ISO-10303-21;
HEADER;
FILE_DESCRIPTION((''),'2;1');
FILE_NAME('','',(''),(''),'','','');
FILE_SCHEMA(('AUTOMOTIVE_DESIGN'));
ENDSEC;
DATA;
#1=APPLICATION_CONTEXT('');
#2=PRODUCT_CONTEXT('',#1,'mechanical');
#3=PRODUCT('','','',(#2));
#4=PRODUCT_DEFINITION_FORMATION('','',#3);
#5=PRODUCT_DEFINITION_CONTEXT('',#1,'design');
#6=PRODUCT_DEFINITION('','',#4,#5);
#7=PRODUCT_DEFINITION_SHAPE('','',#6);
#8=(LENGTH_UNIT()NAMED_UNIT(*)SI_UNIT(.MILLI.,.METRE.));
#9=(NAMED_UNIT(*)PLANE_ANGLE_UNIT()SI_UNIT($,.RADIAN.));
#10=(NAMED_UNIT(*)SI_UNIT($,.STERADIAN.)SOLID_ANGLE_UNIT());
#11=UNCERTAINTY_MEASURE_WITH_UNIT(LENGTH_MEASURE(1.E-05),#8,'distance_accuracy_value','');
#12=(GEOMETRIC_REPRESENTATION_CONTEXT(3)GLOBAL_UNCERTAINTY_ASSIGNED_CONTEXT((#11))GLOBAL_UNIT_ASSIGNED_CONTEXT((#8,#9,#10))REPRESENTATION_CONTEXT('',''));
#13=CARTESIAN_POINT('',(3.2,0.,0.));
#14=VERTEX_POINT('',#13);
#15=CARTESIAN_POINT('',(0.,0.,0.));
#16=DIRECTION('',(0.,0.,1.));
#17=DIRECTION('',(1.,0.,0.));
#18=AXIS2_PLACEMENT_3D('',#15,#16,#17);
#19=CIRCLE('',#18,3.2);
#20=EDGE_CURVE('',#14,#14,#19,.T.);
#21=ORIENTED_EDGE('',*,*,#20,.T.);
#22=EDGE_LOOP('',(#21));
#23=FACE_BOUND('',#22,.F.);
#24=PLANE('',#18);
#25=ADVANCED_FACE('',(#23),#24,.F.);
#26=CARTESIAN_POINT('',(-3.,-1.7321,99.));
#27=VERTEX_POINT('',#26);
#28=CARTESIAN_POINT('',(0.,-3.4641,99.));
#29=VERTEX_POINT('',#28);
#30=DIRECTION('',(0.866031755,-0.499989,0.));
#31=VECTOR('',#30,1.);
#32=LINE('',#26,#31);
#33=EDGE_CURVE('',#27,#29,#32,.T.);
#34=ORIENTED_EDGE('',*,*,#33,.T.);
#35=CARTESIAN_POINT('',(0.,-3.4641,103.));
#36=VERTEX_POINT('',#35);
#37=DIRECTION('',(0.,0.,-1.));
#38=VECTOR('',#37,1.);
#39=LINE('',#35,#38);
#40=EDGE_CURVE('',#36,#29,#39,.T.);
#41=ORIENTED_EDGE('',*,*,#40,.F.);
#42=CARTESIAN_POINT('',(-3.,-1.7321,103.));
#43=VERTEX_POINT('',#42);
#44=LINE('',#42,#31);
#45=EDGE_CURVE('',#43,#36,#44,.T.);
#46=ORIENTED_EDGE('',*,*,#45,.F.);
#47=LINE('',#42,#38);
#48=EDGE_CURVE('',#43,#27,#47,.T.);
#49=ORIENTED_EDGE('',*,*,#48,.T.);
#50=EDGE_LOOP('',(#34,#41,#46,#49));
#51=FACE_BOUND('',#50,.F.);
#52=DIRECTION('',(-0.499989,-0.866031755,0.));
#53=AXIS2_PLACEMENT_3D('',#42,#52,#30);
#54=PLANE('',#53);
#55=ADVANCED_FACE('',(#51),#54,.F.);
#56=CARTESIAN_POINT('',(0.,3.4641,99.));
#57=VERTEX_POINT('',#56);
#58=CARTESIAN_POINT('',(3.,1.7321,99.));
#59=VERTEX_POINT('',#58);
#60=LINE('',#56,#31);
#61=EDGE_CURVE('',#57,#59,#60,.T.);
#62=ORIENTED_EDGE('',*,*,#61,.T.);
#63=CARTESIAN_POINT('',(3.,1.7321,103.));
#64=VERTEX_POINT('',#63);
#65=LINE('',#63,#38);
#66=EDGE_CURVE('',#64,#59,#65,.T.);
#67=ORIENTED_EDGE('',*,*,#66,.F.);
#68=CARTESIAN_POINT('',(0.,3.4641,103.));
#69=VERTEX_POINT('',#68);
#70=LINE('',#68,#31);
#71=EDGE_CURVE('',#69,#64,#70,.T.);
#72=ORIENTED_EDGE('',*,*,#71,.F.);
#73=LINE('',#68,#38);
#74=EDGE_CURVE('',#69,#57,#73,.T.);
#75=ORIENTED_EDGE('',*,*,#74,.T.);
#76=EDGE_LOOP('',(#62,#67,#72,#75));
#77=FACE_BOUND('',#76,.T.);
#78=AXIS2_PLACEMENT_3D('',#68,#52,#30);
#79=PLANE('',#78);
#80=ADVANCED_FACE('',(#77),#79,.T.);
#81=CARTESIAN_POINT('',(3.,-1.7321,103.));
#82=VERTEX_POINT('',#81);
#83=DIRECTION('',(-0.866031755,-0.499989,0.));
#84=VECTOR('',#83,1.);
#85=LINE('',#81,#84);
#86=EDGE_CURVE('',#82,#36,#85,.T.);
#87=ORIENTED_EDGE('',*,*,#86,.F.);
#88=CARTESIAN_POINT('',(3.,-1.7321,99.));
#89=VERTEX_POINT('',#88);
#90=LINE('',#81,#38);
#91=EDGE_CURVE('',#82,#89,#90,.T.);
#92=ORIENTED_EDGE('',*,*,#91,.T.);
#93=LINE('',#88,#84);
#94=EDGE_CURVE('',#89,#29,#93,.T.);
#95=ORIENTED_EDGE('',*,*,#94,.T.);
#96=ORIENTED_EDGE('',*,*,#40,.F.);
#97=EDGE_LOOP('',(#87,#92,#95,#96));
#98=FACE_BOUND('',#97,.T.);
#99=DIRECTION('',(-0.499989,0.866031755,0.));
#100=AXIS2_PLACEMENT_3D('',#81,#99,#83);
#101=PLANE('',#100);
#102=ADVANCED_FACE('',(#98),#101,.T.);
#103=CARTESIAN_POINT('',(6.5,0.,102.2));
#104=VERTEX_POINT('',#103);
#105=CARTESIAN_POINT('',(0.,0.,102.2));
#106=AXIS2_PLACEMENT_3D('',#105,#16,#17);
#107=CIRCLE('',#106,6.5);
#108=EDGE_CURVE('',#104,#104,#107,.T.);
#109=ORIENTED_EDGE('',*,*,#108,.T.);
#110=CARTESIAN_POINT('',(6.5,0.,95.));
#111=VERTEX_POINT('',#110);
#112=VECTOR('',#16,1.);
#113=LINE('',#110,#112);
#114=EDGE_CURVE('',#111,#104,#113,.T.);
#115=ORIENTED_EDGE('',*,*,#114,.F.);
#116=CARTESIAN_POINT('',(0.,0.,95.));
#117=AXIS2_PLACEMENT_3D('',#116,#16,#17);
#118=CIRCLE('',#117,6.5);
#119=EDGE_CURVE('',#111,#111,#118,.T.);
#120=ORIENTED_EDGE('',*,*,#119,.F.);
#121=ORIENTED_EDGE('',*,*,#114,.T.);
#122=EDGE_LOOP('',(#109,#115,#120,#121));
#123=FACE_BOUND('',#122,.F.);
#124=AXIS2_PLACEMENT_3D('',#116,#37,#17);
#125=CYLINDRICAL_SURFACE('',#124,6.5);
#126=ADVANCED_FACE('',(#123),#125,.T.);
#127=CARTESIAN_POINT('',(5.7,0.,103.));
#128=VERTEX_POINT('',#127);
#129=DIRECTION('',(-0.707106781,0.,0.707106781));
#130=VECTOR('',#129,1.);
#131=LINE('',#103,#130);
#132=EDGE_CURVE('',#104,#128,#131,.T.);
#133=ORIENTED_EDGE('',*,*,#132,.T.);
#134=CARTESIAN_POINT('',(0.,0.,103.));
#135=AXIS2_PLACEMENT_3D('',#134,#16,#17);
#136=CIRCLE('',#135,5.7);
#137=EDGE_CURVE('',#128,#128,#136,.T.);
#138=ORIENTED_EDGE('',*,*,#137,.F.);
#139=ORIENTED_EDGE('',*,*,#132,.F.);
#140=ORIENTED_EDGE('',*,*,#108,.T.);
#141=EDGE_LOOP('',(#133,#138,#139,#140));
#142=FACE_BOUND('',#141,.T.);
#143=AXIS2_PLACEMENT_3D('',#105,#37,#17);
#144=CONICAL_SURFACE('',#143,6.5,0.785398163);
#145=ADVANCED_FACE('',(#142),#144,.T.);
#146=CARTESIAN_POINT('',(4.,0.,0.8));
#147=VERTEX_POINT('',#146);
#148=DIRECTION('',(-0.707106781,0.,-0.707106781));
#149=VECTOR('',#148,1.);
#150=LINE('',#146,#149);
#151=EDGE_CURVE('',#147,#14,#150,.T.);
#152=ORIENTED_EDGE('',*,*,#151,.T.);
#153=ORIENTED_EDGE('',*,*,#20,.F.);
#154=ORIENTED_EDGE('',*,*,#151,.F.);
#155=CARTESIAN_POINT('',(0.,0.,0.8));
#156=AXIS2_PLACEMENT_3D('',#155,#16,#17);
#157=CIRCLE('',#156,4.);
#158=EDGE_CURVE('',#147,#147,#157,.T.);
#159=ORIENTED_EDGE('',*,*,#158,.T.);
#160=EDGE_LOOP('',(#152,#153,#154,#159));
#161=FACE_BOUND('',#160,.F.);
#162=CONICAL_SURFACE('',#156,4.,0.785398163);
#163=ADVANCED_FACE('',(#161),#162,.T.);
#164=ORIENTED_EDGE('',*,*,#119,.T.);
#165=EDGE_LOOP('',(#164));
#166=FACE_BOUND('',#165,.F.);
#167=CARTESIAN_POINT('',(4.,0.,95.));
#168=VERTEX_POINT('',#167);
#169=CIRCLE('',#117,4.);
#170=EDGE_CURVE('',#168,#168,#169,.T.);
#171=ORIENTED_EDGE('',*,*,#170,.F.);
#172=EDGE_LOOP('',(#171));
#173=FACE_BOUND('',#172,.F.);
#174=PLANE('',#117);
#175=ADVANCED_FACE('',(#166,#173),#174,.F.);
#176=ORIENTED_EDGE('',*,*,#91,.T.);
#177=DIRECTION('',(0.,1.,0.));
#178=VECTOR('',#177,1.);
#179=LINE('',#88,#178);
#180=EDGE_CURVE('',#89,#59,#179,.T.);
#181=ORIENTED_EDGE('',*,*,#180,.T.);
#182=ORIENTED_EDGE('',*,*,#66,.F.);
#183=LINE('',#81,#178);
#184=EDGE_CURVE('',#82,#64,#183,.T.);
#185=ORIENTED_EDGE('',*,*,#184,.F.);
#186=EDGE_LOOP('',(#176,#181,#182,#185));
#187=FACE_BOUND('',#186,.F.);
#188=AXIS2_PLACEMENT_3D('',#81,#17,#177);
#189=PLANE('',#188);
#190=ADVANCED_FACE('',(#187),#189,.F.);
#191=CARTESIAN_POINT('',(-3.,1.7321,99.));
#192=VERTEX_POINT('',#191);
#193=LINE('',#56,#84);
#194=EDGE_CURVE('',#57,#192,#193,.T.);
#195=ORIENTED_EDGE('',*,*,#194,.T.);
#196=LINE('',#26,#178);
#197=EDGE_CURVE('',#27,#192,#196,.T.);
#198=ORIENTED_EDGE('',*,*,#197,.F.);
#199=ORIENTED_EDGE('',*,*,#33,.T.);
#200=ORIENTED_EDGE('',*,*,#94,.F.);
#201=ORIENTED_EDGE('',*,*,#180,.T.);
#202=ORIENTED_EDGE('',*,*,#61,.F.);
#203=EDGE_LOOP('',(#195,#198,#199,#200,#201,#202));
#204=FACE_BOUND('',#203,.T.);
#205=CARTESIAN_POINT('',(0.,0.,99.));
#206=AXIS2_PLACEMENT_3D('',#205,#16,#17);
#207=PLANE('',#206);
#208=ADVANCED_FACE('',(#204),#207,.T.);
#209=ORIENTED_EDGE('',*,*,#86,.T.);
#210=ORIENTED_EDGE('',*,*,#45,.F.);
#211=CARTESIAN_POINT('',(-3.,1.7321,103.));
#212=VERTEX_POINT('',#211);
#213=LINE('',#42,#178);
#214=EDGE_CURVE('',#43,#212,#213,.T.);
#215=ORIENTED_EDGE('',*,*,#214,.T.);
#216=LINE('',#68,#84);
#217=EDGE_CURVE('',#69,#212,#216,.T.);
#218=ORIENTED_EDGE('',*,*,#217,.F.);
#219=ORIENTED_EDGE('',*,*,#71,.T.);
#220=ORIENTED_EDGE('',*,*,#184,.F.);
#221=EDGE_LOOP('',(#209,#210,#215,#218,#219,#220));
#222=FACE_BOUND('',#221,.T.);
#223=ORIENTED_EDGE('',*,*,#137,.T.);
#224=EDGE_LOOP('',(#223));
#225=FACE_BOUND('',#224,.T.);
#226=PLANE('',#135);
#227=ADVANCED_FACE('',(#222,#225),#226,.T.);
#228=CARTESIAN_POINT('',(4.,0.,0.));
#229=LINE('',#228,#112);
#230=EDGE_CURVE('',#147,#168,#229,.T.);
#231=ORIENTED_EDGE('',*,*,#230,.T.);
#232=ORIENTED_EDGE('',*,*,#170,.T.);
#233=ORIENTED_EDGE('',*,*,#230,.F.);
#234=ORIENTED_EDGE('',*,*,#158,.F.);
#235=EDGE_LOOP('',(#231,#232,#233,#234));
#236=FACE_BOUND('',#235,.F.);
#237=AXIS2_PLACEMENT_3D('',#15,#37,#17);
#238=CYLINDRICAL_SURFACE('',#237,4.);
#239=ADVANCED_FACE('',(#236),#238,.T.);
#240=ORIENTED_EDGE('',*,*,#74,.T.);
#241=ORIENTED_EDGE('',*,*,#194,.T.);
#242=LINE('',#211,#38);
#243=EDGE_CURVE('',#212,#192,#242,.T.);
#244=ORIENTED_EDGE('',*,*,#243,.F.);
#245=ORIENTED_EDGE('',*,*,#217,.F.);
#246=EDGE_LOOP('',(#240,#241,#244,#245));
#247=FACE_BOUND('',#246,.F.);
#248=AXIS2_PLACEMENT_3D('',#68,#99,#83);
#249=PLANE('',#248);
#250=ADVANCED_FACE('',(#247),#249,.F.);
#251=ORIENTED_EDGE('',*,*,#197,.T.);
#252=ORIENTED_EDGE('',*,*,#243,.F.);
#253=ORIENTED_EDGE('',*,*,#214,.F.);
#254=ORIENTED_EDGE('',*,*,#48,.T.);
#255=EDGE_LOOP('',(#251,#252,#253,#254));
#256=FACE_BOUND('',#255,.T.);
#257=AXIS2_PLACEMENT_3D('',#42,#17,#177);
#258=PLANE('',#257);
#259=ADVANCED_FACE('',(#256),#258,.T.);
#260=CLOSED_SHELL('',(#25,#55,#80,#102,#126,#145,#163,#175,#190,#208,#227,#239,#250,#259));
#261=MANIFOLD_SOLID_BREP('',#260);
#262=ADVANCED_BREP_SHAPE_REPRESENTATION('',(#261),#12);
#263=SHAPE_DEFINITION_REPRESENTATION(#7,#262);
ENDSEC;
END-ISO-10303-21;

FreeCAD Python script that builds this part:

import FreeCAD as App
import Part
import Sketcher

V = App.Vector
Q = App.Units.Quantity


def edges_at(feature, points):
    """Names of the edges that pass closest to the given points."""
    edges = feature.Shape.Edges
    near = lambda p: min(range(len(edges)), key=lambda i: edges[i].distToShape(Part.Vertex(*p))[0])
    return sorted({f"Edge{near(p) + 1}" for p in points})


def add_polygon(sketch, points):
    """Adds a closed chain of lines whose ends are joined by coincident constraints."""
    first, n = sketch.GeometryCount, len(points)
    for a, b in zip(points, points[1:] + points[:1]):
        sketch.addGeometry(Part.LineSegment(App.Vector(*a, 0), App.Vector(*b, 0)), False)
    for i in range(n):
        sketch.addConstraint(Sketcher.Constraint("Coincident", first + i, 2, first + (i + 1) % n, 1))

doc = App.newDocument("Part")
body = doc.addObject("PartDesign::Body", "Body")

# Sketch on XY plane
sketch1 = body.newObject("Sketcher::SketchObject", "Sketch")
sketch1.AttachmentSupport = (doc.getObject("XY_Plane"), [""])
sketch1.MapMode = "FlatFace"
sketch1.addGeometry(Part.Circle(V(0, 0, 0), V(0, 0, 1), 4), False)
sketch1.addConstraint([
    Sketcher.Constraint("Coincident", 0, 3, -1, 1),
    Sketcher.Constraint("Diameter", 0, Q("8 mm")),
])
pad1 = body.newObject("PartDesign::Pad", "Pad")
pad1.Profile = sketch1
pad1.Length = 95

# Sketch on XY plane
sketch2 = body.newObject("Sketcher::SketchObject", "Sketch001")
sketch2.AttachmentSupport = (doc.getObject("XY_Plane"), [""])
sketch2.MapMode = "FlatFace"
sketch2.AttachmentOffset = App.Placement(V(0, 0, 95), App.Rotation())
sketch2.addGeometry(Part.Circle(V(0, 0, 0), V(0, 0, 1), 6.5), False)
sketch2.addConstraint([
    Sketcher.Constraint("Coincident", 0, 3, -1, 1),
    Sketcher.Constraint("Diameter", 0, Q("13 mm")),
])
pad2 = body.newObject("PartDesign::Pad", "Pad001")
pad2.Profile = sketch2
pad2.Length = 8

# Sketch on XY plane
sketch3 = body.newObject("Sketcher::SketchObject", "Sketch002")
sketch3.AttachmentSupport = (doc.getObject("XY_Plane"), [""])
sketch3.MapMode = "FlatFace"
sketch3.AttachmentOffset = App.Placement(V(0, 0, 103), App.Rotation())
add_polygon(sketch3, [(3, 1.7321), (0, 3.4641), (-3, 1.7321), (-3, -1.7321), (0, -3.4641), (3, -1.7321)])  # lines 0-5
sketch3.addConstraint([
    Sketcher.Constraint("Vertical", 2),
    Sketcher.Constraint("Vertical", 5),
    Sketcher.Constraint("Symmetric", 0, 2, 3, 2, -1, 1),
    Sketcher.Constraint("Symmetric", 1, 2, 4, 2, -1, 1),
    Sketcher.Constraint("PointOnObject", 0, 2, -2),
    Sketcher.Constraint("Parallel", 0, 3),
    Sketcher.Constraint("Horizontal", 2, 2, 4, 2),
    Sketcher.Constraint("DistanceX", 2, 2, 4, 2, Q("6 mm")),
    Sketcher.Constraint("Angle", 0, Q("150.0007 deg")),
    Sketcher.Constraint("DistanceY", 2, 2, 2, 1, Q("3.4642 mm")),
])
pocket1 = body.newObject("PartDesign::Pocket", "Pocket")
pocket1.Profile = sketch3
pocket1.Length = 4
doc.recompute()

chamfer = body.newObject("PartDesign::Chamfer", "Chamfer")
chamfer.Base = (pocket1, edges_at(pocket1, [(-6.5, 0, 103), (-4, 0, 0)]))
chamfer.Size = 0.8

doc.recompute()
